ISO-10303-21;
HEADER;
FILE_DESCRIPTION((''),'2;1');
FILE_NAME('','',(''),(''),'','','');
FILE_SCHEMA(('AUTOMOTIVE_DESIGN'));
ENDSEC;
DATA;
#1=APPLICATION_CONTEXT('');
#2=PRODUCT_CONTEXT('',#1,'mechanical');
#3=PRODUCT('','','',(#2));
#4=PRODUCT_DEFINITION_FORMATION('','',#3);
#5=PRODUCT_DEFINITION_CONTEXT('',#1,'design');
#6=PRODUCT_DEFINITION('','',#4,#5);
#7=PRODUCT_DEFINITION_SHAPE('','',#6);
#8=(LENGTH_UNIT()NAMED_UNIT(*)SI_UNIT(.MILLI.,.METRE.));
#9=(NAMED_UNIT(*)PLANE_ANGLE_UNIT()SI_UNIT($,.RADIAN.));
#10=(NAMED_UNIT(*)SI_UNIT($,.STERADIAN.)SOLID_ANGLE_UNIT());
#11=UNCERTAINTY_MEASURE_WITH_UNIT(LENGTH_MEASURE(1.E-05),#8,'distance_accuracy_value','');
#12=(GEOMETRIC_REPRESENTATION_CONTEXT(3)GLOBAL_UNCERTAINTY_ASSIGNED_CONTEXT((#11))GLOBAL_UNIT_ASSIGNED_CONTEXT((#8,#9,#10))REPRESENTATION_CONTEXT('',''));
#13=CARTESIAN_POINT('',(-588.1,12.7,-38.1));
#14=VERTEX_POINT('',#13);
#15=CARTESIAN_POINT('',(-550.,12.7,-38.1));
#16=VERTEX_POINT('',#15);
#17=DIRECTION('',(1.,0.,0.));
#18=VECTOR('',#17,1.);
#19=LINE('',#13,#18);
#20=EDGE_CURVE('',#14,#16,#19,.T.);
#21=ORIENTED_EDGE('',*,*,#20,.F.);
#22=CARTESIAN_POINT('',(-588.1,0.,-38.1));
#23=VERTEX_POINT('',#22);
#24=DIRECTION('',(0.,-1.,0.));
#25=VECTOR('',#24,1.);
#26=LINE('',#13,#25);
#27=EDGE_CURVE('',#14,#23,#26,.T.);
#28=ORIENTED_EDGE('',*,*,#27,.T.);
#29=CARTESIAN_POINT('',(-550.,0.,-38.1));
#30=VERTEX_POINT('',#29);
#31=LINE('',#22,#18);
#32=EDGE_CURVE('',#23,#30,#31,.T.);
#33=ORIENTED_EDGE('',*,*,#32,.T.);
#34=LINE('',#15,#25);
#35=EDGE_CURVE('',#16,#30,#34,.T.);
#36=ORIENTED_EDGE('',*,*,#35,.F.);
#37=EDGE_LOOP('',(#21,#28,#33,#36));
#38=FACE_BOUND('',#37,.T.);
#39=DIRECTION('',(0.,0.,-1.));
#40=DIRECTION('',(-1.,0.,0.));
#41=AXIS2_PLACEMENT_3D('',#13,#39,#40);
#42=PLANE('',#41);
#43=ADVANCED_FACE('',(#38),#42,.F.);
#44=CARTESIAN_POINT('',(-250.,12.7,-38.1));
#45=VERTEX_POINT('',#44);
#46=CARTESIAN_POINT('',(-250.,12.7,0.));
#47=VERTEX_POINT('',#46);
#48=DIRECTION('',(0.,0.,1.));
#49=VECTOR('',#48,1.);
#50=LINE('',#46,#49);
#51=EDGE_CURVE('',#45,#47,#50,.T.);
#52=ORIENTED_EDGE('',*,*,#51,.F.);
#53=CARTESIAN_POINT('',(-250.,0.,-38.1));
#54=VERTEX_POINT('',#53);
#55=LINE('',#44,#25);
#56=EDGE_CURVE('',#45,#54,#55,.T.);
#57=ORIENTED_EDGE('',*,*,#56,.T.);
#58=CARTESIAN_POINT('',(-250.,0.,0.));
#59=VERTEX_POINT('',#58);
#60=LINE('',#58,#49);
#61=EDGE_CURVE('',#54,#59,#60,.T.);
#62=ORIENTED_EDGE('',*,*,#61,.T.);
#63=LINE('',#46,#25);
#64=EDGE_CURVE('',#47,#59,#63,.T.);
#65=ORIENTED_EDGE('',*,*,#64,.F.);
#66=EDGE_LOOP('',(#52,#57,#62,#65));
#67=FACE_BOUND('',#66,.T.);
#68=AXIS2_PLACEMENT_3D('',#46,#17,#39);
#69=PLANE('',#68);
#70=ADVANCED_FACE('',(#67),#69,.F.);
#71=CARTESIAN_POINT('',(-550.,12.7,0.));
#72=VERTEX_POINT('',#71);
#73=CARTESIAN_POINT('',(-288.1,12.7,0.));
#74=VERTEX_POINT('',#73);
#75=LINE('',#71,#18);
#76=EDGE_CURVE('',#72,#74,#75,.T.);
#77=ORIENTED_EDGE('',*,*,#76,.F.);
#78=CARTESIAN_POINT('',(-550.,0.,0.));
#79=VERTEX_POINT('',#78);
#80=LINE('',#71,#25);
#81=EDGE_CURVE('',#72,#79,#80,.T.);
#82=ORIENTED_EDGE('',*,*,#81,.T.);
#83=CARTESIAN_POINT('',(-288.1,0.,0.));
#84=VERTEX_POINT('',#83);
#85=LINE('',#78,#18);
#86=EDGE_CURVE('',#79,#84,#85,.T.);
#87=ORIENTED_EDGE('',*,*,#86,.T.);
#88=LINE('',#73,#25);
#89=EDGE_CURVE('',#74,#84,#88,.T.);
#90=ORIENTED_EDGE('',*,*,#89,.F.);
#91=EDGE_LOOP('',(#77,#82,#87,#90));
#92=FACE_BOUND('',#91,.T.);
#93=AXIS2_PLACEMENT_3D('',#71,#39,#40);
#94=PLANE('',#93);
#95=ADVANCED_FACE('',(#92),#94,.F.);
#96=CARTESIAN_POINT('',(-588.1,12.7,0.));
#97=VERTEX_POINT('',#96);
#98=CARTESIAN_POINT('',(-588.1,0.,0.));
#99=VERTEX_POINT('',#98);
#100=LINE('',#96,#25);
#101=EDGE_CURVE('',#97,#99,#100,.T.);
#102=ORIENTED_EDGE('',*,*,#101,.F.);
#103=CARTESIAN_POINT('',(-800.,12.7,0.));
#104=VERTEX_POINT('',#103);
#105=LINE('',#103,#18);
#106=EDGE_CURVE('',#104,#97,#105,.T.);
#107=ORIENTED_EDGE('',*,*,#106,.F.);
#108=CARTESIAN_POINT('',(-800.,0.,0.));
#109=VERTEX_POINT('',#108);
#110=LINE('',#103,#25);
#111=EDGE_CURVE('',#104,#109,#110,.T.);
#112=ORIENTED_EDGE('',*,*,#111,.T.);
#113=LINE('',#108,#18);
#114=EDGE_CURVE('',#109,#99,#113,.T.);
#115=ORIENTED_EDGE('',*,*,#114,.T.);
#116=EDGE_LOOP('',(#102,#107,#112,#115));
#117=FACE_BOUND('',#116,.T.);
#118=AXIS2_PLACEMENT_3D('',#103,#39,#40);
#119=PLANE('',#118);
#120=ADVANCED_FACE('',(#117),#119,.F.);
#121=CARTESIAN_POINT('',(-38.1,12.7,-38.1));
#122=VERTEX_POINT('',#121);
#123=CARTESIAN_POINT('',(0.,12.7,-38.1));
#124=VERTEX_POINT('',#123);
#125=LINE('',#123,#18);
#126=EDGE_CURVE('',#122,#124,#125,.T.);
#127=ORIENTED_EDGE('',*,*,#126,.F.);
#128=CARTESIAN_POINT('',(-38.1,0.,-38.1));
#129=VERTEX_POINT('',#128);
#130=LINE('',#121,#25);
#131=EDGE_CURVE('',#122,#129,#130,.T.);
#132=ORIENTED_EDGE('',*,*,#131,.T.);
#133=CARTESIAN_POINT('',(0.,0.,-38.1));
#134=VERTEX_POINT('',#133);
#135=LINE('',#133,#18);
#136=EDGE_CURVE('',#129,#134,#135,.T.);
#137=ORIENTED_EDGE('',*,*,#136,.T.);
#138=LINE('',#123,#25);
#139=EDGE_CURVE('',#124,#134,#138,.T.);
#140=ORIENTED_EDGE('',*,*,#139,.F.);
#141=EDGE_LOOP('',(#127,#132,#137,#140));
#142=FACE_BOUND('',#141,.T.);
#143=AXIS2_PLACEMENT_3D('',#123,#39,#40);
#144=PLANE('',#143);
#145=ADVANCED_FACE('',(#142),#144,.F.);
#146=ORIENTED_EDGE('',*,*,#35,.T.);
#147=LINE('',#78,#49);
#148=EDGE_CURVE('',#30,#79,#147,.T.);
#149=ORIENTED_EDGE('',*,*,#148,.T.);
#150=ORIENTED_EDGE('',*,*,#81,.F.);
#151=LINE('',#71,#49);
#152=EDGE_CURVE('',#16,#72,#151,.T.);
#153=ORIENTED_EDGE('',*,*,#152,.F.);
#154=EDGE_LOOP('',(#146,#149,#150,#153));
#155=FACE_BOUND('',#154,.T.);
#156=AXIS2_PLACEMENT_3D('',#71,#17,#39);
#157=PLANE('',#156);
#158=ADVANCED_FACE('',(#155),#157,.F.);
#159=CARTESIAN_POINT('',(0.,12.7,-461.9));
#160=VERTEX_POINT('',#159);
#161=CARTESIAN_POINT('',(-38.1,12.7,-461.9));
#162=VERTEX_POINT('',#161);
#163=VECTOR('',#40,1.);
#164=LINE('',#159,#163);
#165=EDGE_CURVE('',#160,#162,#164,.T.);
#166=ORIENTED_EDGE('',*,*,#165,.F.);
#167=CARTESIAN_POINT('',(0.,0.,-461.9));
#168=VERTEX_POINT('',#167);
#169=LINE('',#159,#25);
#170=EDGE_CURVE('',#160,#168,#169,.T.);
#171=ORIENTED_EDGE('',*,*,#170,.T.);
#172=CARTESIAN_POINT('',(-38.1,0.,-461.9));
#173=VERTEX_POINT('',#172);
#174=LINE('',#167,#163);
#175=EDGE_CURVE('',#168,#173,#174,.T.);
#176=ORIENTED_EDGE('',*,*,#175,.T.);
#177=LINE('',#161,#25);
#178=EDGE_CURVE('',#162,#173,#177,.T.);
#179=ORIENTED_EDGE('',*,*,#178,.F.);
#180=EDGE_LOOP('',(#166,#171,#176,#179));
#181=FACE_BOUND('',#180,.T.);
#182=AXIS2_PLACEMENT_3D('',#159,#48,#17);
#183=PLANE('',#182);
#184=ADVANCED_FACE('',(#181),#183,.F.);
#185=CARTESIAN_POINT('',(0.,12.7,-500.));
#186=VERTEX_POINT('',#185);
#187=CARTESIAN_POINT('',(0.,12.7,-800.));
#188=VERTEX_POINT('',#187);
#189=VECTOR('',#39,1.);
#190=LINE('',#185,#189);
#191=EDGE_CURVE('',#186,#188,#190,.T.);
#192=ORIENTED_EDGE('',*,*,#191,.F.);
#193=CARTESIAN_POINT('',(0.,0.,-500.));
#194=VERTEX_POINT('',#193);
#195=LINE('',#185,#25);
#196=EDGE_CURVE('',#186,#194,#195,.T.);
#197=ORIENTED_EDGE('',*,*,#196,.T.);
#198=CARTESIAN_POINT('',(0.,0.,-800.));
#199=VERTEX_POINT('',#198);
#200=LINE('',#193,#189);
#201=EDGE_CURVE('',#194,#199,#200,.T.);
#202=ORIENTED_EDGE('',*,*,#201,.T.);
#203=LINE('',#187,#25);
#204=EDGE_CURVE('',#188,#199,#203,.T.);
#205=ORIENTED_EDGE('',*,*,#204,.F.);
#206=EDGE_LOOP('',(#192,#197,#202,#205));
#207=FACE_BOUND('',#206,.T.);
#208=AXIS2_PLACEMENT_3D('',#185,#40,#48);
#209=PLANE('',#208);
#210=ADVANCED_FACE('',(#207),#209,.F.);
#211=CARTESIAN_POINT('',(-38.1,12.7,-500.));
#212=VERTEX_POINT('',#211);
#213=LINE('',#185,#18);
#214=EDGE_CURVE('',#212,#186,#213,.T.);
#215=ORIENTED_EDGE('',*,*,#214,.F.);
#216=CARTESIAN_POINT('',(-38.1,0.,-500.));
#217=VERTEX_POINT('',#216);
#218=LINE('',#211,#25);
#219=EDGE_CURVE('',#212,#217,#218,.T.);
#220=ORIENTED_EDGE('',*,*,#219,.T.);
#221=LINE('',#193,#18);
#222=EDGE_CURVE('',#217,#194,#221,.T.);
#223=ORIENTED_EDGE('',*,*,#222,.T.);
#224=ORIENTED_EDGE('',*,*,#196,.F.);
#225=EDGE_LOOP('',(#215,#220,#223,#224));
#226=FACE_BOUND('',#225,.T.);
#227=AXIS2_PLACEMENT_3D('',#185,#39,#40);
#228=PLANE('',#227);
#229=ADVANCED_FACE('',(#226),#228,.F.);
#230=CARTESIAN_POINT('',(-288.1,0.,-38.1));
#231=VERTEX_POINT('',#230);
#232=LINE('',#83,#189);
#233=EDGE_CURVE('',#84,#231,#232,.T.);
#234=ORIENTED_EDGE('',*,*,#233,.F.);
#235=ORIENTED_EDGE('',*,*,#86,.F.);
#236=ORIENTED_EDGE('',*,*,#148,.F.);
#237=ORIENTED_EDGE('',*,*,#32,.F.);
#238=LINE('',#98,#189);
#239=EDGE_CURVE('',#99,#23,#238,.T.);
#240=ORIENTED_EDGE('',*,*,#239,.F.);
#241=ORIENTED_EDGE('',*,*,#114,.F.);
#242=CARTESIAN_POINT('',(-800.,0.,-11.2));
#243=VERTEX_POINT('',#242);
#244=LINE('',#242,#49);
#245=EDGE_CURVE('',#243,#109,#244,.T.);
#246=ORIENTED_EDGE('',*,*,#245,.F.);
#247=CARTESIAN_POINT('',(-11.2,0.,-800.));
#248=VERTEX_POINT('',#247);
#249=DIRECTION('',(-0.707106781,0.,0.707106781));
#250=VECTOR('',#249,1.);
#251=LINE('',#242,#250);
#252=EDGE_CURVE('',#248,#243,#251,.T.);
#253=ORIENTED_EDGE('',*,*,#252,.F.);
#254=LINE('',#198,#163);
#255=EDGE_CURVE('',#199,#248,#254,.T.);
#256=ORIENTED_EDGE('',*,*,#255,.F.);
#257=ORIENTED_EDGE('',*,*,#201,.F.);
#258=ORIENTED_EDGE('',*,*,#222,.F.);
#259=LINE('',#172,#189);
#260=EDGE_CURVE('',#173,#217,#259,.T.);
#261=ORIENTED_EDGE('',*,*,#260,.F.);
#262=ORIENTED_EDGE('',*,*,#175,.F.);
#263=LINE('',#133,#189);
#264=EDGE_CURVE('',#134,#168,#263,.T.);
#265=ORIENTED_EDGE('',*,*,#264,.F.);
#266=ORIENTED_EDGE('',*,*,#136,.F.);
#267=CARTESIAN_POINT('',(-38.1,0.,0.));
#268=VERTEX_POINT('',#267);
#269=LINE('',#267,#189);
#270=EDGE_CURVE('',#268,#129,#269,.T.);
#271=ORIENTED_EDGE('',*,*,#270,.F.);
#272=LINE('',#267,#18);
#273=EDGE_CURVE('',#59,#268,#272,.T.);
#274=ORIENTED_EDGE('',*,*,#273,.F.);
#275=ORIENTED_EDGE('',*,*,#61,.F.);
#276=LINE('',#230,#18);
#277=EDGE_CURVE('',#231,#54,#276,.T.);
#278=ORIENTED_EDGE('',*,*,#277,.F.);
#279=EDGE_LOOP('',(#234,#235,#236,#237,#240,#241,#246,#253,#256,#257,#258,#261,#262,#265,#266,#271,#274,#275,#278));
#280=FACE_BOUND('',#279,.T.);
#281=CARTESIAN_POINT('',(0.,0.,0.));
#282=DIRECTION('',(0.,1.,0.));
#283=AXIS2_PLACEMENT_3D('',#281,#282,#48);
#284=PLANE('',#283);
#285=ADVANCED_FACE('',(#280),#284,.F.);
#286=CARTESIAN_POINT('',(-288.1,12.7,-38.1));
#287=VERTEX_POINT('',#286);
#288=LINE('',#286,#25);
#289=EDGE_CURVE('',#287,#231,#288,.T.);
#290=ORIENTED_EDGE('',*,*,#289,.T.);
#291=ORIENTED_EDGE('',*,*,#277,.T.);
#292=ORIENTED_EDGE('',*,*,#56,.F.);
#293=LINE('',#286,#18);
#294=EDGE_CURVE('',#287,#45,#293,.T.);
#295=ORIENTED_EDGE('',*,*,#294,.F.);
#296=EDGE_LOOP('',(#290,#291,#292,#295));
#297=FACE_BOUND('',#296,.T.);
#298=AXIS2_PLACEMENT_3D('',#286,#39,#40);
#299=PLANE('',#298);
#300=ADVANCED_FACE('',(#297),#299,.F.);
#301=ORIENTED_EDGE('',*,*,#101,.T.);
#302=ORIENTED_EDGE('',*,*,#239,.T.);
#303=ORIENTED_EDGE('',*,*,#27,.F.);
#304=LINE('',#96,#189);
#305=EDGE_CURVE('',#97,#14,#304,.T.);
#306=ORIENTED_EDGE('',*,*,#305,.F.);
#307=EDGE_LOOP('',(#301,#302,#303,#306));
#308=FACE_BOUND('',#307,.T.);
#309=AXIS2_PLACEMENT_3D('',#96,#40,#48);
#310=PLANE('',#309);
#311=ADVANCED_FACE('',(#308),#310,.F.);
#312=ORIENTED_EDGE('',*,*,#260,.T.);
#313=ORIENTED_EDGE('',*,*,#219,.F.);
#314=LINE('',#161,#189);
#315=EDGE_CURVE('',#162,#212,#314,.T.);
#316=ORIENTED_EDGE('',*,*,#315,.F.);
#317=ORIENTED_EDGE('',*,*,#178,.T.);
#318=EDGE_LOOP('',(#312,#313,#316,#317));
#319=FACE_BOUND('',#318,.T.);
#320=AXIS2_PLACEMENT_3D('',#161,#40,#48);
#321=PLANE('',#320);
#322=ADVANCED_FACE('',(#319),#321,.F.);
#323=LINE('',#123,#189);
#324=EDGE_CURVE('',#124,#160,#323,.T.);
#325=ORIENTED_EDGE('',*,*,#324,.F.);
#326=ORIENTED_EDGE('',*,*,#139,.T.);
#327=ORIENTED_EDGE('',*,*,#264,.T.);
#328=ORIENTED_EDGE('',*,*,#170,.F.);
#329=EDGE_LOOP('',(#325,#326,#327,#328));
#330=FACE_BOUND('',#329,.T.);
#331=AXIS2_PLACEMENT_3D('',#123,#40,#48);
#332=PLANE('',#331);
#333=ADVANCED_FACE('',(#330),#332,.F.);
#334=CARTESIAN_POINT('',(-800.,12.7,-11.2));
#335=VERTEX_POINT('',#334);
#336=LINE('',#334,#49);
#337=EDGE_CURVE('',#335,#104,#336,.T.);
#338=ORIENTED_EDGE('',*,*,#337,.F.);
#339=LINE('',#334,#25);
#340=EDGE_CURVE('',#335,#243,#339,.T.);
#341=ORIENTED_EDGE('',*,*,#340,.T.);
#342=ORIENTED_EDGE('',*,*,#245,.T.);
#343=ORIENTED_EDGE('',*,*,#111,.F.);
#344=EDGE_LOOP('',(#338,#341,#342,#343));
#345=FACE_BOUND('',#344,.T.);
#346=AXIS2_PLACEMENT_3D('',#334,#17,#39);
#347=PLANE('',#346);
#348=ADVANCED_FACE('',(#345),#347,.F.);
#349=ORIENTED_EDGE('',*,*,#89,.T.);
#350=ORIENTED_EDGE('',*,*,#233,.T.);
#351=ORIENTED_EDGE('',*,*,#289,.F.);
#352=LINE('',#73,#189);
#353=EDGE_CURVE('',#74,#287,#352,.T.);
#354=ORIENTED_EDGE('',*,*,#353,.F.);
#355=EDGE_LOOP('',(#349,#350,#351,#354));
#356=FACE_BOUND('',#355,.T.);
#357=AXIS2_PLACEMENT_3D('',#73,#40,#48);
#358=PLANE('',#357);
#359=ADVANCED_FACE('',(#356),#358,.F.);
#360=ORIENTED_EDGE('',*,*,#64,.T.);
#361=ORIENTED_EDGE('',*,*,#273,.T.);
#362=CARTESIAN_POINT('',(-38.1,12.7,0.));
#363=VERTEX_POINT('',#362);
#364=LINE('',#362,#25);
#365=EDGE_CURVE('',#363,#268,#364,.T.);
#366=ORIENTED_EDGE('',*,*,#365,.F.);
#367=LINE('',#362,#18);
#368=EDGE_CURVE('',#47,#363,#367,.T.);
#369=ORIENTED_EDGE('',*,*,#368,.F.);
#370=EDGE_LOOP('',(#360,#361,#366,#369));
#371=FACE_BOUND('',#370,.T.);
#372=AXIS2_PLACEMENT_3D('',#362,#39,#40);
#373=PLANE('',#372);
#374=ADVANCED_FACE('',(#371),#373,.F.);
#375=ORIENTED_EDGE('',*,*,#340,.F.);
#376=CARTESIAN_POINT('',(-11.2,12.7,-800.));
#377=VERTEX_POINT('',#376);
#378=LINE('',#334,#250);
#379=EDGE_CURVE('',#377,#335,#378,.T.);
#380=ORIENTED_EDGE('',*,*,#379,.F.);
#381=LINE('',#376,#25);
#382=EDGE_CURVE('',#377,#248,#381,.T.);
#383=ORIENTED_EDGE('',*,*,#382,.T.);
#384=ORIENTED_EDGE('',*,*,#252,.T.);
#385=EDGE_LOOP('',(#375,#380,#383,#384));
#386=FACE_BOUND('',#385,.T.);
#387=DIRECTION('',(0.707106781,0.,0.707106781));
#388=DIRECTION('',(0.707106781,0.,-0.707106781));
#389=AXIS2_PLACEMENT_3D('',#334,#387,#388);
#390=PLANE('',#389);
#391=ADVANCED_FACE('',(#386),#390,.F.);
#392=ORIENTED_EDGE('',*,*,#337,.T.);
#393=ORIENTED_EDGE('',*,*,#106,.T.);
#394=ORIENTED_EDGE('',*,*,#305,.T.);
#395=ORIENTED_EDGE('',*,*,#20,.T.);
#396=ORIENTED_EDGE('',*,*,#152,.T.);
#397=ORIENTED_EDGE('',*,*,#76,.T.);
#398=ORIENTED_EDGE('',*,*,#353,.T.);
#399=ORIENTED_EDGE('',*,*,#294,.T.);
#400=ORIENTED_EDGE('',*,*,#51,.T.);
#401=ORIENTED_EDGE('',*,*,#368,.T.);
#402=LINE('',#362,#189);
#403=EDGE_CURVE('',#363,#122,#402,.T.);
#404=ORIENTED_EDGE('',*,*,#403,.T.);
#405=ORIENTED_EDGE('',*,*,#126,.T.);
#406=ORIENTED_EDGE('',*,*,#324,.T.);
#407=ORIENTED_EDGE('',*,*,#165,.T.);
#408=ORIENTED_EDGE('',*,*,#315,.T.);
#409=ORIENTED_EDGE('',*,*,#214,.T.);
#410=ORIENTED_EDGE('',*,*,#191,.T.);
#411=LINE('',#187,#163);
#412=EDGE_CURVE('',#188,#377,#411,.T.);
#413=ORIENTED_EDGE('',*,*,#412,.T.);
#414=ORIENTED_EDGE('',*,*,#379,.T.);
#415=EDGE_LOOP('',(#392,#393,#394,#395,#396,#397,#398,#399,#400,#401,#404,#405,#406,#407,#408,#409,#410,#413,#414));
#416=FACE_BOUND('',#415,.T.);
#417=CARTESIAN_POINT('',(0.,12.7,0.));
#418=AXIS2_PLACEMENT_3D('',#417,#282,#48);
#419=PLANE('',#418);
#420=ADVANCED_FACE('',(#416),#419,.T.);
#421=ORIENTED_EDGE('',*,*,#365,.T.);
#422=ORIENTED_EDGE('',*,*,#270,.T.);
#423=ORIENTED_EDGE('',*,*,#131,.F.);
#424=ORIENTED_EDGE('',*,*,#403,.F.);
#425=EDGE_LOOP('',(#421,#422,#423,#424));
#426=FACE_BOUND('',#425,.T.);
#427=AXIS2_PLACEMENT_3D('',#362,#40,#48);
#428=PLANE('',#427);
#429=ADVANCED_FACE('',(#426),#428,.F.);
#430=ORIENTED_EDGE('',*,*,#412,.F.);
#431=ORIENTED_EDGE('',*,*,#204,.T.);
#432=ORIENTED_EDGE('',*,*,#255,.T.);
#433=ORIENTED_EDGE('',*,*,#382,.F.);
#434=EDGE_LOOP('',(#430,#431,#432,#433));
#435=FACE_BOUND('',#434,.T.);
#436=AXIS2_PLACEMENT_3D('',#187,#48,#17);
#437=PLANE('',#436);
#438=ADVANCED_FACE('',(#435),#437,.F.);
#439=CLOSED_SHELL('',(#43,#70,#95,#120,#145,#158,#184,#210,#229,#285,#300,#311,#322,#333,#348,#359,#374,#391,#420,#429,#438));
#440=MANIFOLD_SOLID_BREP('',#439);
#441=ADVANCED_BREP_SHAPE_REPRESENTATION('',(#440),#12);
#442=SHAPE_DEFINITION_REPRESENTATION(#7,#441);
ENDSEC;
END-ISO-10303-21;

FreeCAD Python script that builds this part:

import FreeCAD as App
import Part
import Sketcher
Q = App.Units.Quantity


def add_polygon(sketch, points):
    """Adds a closed chain of lines whose ends are joined by coincident constraints."""
    first, n = sketch.GeometryCount, len(points)
    for a, b in zip(points, points[1:] + points[:1]):
        sketch.addGeometry(Part.LineSegment(App.Vector(*a, 0), App.Vector(*b, 0)), False)
    for i in range(n):
        sketch.addConstraint(Sketcher.Constraint("Coincident", first + i, 2, first + (i + 1) % n, 1))

doc = App.newDocument("Part")
params = doc.addObject("Spreadsheet::Sheet", "Params")
for row, (alias, value) in enumerate([
    ("sketch1_height", "300 mm"),
    ("sketch1_width", "211.9 mm"),
    ("sketch1_width2", "38.1 mm"),
    ("sketch1_width3", "11.2 mm"),
    ("sketch1_width4", "261.9 mm"),
    ("pad1_length", "12.7 mm"),
], start=1):
    params.set(f"A{row}", alias)
    params.set(f"B{row}", "=" + value)
    params.setAlias(f"B{row}", alias)

body = doc.addObject("PartDesign::Body", "Body")

# Sketch on XZ plane
sketch1 = doc.addObject("Sketcher::SketchObject", "Sketch")
body.addObject(sketch1)
sketch1.AttachmentSupport = (doc.XZ_Plane, [""])
sketch1.MapMode = "FlatFace"
add_polygon(sketch1, [(-250, 0), (-38, 0), (-38, -38), (0, -38), (0, -462), (-38, -462), (-38, -500), (0, -500), (0, -800), (-11, -800), (-800, -11), (-800, 0), (-588, 0), (-588, -38), (-550, -38), (-550, 0), (-288, 0), (-288, -38), (-250, -38)])  # lines 0-18
sketch1.addConstraint(Sketcher.Constraint("Horizontal", 0))
sketch1.addConstraint(Sketcher.Constraint("Vertical", 1))
sketch1.addConstraint(Sketcher.Constraint("Horizontal", 2))
sketch1.addConstraint(Sketcher.Constraint("Vertical", 3))
sketch1.addConstraint(Sketcher.Constraint("Horizontal", 4))
sketch1.addConstraint(Sketcher.Constraint("Vertical", 5))
sketch1.addConstraint(Sketcher.Constraint("Horizontal", 6))
sketch1.addConstraint(Sketcher.Constraint("Vertical", 7))
sketch1.addConstraint(Sketcher.Constraint("Horizontal", 8))
sketch1.addConstraint(Sketcher.Constraint("Vertical", 10))
sketch1.addConstraint(Sketcher.Constraint("Horizontal", 11))
sketch1.addConstraint(Sketcher.Constraint("Vertical", 12))
sketch1.addConstraint(Sketcher.Constraint("Horizontal", 13))
sketch1.addConstraint(Sketcher.Constraint("Vertical", 14))
sketch1.addConstraint(Sketcher.Constraint("Horizontal", 15))
sketch1.addConstraint(Sketcher.Constraint("Vertical", 16))
sketch1.addConstraint(Sketcher.Constraint("Horizontal", 17))
sketch1.addConstraint(Sketcher.Constraint("Vertical", 18))
sketch1.addConstraint(Sketcher.Constraint("PointOnObject", 0, 2, -1))
sketch1.addConstraint(Sketcher.Constraint("PointOnObject", 2, 2, -2))
sketch1.addConstraint(Sketcher.Constraint("PointOnObject", 6, 2, -2))
sketch1.addConstraint(Sketcher.Constraint("PointOnObject", 10, 2, -1))
sketch1.addConstraint(Sketcher.Constraint("PointOnObject", 14, 2, -1))
sketch1.addConstraint(Sketcher.Constraint("Horizontal", 2, 2, 12, 2))
sketch1.addConstraint(Sketcher.Constraint("Horizontal", 13, 2, 16, 2))
sketch1.addConstraint(Sketcher.Constraint("Vertical", 1, 2, 4, 2))
sketch1.addConstraint(Sketcher.Constraint("Equal", 0, 11))
sketch1.addConstraint(Sketcher.Constraint("Equal", 6, 13))
sketch1.addConstraint(Sketcher.Constraint("Equal", 13, 17))
sketch1.addConstraint(Sketcher.Constraint("Equal", 17, 1))
sketch1.addConstraint(Sketcher.Constraint("Equal", 1, 5))
sketch1.addConstraint(Sketcher.Constraint("Equal", 8, 10))
sketch1.addConstraint(Sketcher.Constraint("DistanceY", 7, 2, 7, 1, 300.0))
sketch1.addConstraint(Sketcher.Constraint("Angle", 9, Q("135 deg")))
sketch1.addConstraint(Sketcher.Constraint("DistanceX", 0, 1, 0, 2, 211.9))
sketch1.addConstraint(Sketcher.Constraint("DistanceX", 2, 1, 2, 2, 38.1))
sketch1.addConstraint(Sketcher.Constraint("DistanceX", 8, 2, 8, 1, 11.2))
sketch1.addConstraint(Sketcher.Constraint("DistanceX", 15, 1, 15, 2, 261.9))
sketch1.setExpression("Constraints[51]", "Params.sketch1_height")
sketch1.setExpression("Constraints[53]", "Params.sketch1_width")
sketch1.setExpression("Constraints[54]", "Params.sketch1_width2")
sketch1.setExpression("Constraints[55]", "Params.sketch1_width3")
sketch1.setExpression("Constraints[56]", "Params.sketch1_width4")
pad1 = doc.addObject("PartDesign::Pad", "Pad")
body.addObject(pad1)
pad1.Profile = sketch1
pad1.setExpression("Length", "Params.pad1_length")
pad1.Reversed = True

doc.recompute()
